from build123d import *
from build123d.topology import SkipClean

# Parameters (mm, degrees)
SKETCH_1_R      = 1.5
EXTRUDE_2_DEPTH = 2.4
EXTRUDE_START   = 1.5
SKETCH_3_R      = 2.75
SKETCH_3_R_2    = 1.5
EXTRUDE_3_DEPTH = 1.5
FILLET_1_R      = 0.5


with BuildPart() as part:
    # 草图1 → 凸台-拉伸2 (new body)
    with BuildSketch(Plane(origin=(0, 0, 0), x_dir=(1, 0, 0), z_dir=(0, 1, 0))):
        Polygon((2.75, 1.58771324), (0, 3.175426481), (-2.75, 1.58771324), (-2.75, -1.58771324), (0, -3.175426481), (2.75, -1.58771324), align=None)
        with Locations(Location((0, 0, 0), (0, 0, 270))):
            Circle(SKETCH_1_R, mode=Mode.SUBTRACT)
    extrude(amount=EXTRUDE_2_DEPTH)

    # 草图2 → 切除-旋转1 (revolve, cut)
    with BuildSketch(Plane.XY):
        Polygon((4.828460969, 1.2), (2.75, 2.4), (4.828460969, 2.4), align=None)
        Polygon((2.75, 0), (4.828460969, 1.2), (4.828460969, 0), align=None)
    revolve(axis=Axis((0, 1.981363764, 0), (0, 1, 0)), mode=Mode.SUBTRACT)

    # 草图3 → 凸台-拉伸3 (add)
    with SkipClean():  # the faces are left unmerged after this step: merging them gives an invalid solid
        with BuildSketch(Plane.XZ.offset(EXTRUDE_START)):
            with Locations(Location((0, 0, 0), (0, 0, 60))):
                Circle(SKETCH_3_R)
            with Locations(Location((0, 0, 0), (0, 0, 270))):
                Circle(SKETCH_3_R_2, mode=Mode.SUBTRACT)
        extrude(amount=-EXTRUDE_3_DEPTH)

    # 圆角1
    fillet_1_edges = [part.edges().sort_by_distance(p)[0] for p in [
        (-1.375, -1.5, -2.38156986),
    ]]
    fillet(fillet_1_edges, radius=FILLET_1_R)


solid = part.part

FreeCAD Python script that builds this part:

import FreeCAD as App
import Part
import Sketcher
from FreeCAD import Vector
Q = App.Units.Quantity


def edges_at(feature, points):
    """Names of the edges that pass closest to the given points."""
    edges = feature.Shape.Edges
    near = lambda p: min(range(len(edges)), key=lambda i: edges[i].distToShape(Part.Vertex(*p))[0])
    return sorted({f"Edge{near(p) + 1}" for p in points})


def add_polygon(sketch, points):
    """Adds a closed chain of lines whose ends are joined by coincident constraints."""
    first, n = sketch.GeometryCount, len(points)
    for a, b in zip(points, points[1:] + points[:1]):
        sketch.addGeometry(Part.LineSegment(App.Vector(*a, 0), App.Vector(*b, 0)), False)
    for i in range(n):
        sketch.addConstraint(Sketcher.Constraint("Coincident", first + i, 2, first + (i + 1) % n, 1))

doc = App.newDocument("Part")
params = doc.addObject("Spreadsheet::Sheet", "Params")
for row, (alias, value) in enumerate([
    ("sketch1_diameter", "3 mm"),
    ("pad1_length", "2.4 mm"),
    ("sketch2_height", "1.2 mm"),
    ("groove_angle", "360 deg"),
    ("sketch3_diameter", "3 mm"),
    ("sketch3_diameter2", "5.5 mm"),
    ("pad2_length", "1.5 mm"),
    ("fillet_radius", "0.5 mm"),
], start=1):
    params.set(f"A{row}", alias)
    params.set(f"B{row}", "=" + value)
    params.setAlias(f"B{row}", alias)

body = doc.addObject("PartDesign::Body", "Body")

# Sketch on XZ plane
sketch1 = body.newObject("Sketcher::SketchObject", "Sketch")
sketch1.AttachmentSupport = (doc.getObject("XZ_Plane"), [""])
sketch1.MapMode = "FlatFace"
add_polygon(sketch1, [(2.8, -1.6), (0, -3.2), (-2.8, -1.6), (-2.8, 1.6), (0, 3.2), (2.8, 1.6)])  # lines 0-5
sketch1.addGeometry(Part.Circle(Vector(0, 0, 0), Vector(0, 0, 1), 1.5), False)  # 6
sketch1.addConstraint(Sketcher.Constraint("Vertical", 2))
sketch1.addConstraint(Sketcher.Constraint("Vertical", 5))
sketch1.addConstraint(Sketcher.Constraint("Coincident", 6, 3, -1, 1))
sketch1.addConstraint(Sketcher.Constraint("Symmetric", 0, 2, 3, 2, -1, 1))
sketch1.addConstraint(Sketcher.Constraint("Symmetric", 1, 2, 4, 2, -1, 1))
sketch1.addConstraint(Sketcher.Constraint("PointOnObject", 0, 2, -2))
sketch1.addConstraint(Sketcher.Constraint("Parallel", 0, 3))
sketch1.addConstraint(Sketcher.Constraint("Horizontal", 2, 2, 4, 2))
sketch1.addConstraint(Sketcher.Constraint("Diameter", 6, Q("3 mm")))
sketch1.addConstraint(Sketcher.Constraint("Angle", 0, Q("-150 deg")))
sketch1.addConstraint(Sketcher.Constraint("DistanceX", 2, 2, 4, 2, Q("5.5 mm")))
sketch1.addConstraint(Sketcher.Constraint("DistanceY", 2, 1, 2, 2, Q("3.175426 mm")))
sketch1.setExpression("Constraints[14]", "Params.sketch1_diameter")
pad1 = body.newObject("PartDesign::Pad", "Pad")
pad1.Profile = sketch1
pad1.setExpression("Length", "Params.pad1_length")
pad1.Reversed = True

# Sketch on XY plane
sketch2 = body.newObject("Sketcher::SketchObject", "Sketch001")
sketch2.AttachmentSupport = (doc.getObject("XY_Plane"), [""])
sketch2.MapMode = "FlatFace"
add_polygon(sketch2, [(2.8, 2.4), (4.8, 1.2), (4.8, 2.4)])  # lines 0-2
add_polygon(sketch2, [(4.8, 1.2), (2.8, 0), (4.8, 0)])  # lines 3-5
sketch2.addConstraint(Sketcher.Constraint("Vertical", 1))
sketch2.addConstraint(Sketcher.Constraint("Horizontal", 2))
sketch2.addConstraint(Sketcher.Constraint("Horizontal", 4))
sketch2.addConstraint(Sketcher.Constraint("Vertical", 5))
sketch2.addConstraint(Sketcher.Constraint("Coincident", 5, 2, 0, 2))
sketch2.addConstraint(Sketcher.Constraint("PointOnObject", 3, 2, -1))
sketch2.addConstraint(Sketcher.Constraint("Vertical", 2, 2, 3, 2))
sketch2.addConstraint(Sketcher.Constraint("Equal", 1, 5))
sketch2.addConstraint(Sketcher.Constraint("Angle", 0, Q("-30 deg")))
sketch2.addConstraint(Sketcher.Constraint("DistanceY", 1, 1, 1, 2, Q("1.2 mm")))
sketch2.addConstraint(Sketcher.Constraint("DistanceX", -1, 1, 2, 2, Q("2.75 mm")))
sketch2.setExpression("Constraints[15]", "Params.sketch2_height")
groove = body.newObject("PartDesign::Groove", "Groove")
groove.Profile = sketch2
groove.ReferenceAxis = (sketch2, ["V_Axis"])
groove.setExpression("Angle", "Params.groove_angle")

# Sketch on XZ plane
sketch3 = body.newObject("Sketcher::SketchObject", "Sketch002")
sketch3.AttachmentSupport = (doc.getObject("XZ_Plane"), [""])
sketch3.MapMode = "FlatFace"
sketch3.AttachmentOffset = App.Placement(Vector(0, 0, 1.5), App.Rotation())
sketch3.addGeometry(Part.Circle(Vector(0, 0, 0), Vector(0, 0, 1), 2.8), False)
sketch3.addGeometry(Part.Circle(Vector(0, 0, 0), Vector(0, 0, 1), 1.5), False)
sketch3.addConstraint(Sketcher.Constraint("Coincident", 0, 3, -1, 1))
sketch3.addConstraint(Sketcher.Constraint("Coincident", 1, 3, -1, 1))
sketch3.addConstraint(Sketcher.Constraint("Diameter", 1, Q("3 mm")))
sketch3.addConstraint(Sketcher.Constraint("Diameter", 0, Q("5.5 mm")))
sketch3.setExpression("Constraints[2]", "Params.sketch3_diameter")
sketch3.setExpression("Constraints[3]", "Params.sketch3_diameter2")
pad2 = body.newObject("PartDesign::Pad", "Pad001")
pad2.Profile = sketch3
pad2.setExpression("Length", "Params.pad2_length")
pad2.Reversed = True
doc.recompute()

fillet = body.newObject("PartDesign::Fillet", "Fillet")
fillet.Base = (pad2, edges_at(pad2, [(-1.375, -1.5, -2.382)]))
fillet.setExpression("Radius", "Params.fillet_radius")

doc.recompute()
